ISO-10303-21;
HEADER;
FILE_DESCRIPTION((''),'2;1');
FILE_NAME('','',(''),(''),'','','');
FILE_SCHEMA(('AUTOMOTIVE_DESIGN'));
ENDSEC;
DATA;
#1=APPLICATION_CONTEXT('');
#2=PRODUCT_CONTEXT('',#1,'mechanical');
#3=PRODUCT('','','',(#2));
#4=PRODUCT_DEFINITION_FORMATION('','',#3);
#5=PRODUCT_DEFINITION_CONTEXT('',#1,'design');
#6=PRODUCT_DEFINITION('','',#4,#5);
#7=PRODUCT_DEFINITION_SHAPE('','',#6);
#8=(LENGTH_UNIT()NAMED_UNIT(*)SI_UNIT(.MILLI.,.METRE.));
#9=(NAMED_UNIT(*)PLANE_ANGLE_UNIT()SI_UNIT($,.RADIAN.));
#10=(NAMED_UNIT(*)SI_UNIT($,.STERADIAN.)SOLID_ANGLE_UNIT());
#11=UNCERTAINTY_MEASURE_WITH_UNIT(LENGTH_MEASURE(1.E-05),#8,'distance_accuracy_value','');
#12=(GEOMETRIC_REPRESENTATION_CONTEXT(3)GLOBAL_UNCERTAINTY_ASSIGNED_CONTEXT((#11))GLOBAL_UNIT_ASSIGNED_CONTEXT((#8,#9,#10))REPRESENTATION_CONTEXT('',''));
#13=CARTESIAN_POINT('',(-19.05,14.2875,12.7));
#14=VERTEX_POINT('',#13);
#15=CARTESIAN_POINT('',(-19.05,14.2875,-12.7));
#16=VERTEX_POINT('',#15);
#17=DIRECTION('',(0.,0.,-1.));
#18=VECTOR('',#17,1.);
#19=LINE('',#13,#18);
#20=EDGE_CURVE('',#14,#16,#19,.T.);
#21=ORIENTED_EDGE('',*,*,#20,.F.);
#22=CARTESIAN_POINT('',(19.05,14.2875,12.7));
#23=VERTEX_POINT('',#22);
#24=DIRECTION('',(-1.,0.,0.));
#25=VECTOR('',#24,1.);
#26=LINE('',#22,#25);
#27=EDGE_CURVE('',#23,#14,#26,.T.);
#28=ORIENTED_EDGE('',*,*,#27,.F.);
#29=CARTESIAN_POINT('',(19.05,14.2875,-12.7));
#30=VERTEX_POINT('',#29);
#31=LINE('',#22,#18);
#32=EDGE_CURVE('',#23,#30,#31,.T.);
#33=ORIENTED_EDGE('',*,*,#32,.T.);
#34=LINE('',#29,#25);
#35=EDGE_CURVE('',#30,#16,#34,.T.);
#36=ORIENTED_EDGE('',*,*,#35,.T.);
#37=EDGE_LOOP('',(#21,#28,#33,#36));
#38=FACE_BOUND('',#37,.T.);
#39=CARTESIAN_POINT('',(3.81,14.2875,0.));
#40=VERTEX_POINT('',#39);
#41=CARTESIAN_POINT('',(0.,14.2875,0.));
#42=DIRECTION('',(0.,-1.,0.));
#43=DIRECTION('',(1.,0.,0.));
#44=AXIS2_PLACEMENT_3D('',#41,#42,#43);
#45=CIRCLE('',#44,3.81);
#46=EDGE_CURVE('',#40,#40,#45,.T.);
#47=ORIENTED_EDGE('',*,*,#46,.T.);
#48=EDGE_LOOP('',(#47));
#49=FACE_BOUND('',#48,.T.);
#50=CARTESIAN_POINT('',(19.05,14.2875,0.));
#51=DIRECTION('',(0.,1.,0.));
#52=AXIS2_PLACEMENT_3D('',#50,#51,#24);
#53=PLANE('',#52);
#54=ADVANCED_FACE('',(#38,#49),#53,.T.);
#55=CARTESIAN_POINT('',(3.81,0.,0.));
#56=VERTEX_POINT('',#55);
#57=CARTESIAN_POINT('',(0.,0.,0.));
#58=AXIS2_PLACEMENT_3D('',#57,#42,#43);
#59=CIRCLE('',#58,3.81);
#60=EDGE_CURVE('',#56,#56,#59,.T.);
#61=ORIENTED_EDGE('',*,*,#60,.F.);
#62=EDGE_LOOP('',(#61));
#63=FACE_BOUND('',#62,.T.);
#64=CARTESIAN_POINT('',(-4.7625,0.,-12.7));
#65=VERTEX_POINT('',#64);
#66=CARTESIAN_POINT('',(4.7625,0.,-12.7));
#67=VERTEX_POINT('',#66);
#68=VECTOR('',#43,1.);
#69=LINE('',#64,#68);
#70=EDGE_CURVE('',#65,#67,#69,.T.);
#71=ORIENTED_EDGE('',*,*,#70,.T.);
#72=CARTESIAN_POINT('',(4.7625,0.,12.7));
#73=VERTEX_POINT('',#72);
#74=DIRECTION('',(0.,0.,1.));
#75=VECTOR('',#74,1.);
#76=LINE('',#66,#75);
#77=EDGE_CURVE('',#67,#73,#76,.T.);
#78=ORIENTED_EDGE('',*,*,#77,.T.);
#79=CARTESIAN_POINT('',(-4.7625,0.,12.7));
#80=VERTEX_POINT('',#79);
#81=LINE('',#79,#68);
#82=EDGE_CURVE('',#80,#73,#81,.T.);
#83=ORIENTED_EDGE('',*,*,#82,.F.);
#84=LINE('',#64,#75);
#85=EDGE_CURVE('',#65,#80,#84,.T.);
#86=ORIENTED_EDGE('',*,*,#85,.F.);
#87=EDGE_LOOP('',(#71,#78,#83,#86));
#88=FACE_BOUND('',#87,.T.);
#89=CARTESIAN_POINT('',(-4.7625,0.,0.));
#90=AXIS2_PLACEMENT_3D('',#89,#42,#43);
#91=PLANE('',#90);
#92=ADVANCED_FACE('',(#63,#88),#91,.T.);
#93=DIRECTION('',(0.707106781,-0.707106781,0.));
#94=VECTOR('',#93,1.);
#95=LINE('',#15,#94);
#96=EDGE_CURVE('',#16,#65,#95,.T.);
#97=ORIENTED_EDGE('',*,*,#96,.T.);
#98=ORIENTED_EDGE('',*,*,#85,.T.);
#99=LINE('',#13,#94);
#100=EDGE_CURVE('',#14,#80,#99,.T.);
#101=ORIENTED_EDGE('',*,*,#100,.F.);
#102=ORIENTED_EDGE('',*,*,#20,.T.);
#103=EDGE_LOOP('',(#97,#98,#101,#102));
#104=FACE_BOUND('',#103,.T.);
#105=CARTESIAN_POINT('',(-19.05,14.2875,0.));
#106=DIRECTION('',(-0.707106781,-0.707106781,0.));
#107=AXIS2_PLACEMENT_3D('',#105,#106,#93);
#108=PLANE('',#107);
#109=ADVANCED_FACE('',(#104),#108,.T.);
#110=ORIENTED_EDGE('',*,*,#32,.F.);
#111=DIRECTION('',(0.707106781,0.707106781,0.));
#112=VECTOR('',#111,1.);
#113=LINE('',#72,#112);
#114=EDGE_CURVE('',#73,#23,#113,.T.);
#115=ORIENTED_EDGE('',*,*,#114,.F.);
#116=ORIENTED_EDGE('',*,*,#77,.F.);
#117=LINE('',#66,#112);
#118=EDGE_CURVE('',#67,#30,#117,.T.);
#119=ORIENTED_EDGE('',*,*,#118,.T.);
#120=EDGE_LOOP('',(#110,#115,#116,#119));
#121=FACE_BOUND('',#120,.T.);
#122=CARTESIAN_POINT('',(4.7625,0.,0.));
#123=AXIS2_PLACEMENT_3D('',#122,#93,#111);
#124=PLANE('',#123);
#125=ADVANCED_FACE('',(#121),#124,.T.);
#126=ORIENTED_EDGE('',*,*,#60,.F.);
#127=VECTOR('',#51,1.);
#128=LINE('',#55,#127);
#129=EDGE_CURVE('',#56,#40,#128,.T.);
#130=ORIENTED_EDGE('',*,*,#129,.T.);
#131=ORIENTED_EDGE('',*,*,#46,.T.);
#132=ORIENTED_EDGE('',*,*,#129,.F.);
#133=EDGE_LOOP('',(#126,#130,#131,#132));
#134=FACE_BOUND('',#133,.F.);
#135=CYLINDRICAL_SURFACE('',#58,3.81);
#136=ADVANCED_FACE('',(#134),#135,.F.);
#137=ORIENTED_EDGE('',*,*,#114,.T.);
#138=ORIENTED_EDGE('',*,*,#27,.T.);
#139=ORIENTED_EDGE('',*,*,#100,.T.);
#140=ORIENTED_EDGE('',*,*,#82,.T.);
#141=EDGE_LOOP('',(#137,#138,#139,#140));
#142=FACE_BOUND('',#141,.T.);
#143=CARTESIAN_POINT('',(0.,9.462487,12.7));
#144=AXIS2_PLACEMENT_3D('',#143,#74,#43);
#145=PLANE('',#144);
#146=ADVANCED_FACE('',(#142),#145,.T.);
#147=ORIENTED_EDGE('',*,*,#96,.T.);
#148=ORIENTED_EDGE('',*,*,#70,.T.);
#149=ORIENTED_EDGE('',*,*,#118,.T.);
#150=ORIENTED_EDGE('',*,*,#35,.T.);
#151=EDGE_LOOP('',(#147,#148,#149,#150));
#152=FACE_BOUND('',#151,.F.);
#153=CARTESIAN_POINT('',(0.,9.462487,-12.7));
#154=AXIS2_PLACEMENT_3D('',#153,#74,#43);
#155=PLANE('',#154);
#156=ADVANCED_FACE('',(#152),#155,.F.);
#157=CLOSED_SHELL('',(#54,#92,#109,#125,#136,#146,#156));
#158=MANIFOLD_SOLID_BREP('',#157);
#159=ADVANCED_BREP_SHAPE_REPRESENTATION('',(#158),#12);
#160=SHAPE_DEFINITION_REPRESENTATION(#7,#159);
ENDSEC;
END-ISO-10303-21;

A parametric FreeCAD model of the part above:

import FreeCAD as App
import Part
import Sketcher

V = App.Vector
Q = App.Units.Quantity


def add_polygon(sketch, points):
    """Adds a closed chain of lines whose ends are joined by coincident constraints."""
    first, n = sketch.GeometryCount, len(points)
    for a, b in zip(points, points[1:] + points[:1]):
        sketch.addGeometry(Part.LineSegment(App.Vector(*a, 0), App.Vector(*b, 0)), False)
    for i in range(n):
        sketch.addConstraint(Sketcher.Constraint("Coincident", first + i, 2, first + (i + 1) % n, 1))

doc = App.newDocument("Part")
body = doc.addObject("PartDesign::Body", "Body")

# Sketch on XY plane
sketch1 = body.newObject("Sketcher::SketchObject", "Sketch")
sketch1.AttachmentSupport = (doc.getObject("XY_Plane"), [""])
sketch1.MapMode = "FlatFace"
add_polygon(sketch1, [(-19, 14), (-5, 0), (5, 0), (19, 14)])  # lines 0-3
sketch1.addConstraint([
    Sketcher.Constraint("Horizontal", 1),
    Sketcher.Constraint("Horizontal", 3),
    Sketcher.Constraint("Symmetric", 0, 2, 1, 2, -1, 1),
    Sketcher.Constraint("Perpendicular", 0, 2),
    Sketcher.Constraint("Equal", 0, 2),
    Sketcher.Constraint("DistanceX", 3, 2, 3, 1, Q("1.5 in")),
    Sketcher.Constraint("DistanceX", 1, 1, 1, 2, Q("0.375 in")),
])
pad1 = body.newObject("PartDesign::Pad", "Pad")
pad1.Profile = sketch1
pad1.Length = Q("1 in")
pad1.Midplane = True

# Sketch on XZ plane
sketch2 = body.newObject("Sketcher::SketchObject", "Sketch001")
sketch2.AttachmentSupport = (doc.getObject("XZ_Plane"), [""])
sketch2.MapMode = "FlatFace"
sketch2.addGeometry(Part.Circle(V(0, 0, 0), V(0, 0, 1), 3.8), False)
sketch2.addConstraint([
    Sketcher.Constraint("Coincident", 0, 3, -1, 1),
    Sketcher.Constraint("Diameter", 0, Q("0.3 in")),
])
pocket1 = body.newObject("PartDesign::Pocket", "Pocket")
pocket1.Profile = sketch2
pocket1.Type = "ThroughAll"

doc.recompute()
